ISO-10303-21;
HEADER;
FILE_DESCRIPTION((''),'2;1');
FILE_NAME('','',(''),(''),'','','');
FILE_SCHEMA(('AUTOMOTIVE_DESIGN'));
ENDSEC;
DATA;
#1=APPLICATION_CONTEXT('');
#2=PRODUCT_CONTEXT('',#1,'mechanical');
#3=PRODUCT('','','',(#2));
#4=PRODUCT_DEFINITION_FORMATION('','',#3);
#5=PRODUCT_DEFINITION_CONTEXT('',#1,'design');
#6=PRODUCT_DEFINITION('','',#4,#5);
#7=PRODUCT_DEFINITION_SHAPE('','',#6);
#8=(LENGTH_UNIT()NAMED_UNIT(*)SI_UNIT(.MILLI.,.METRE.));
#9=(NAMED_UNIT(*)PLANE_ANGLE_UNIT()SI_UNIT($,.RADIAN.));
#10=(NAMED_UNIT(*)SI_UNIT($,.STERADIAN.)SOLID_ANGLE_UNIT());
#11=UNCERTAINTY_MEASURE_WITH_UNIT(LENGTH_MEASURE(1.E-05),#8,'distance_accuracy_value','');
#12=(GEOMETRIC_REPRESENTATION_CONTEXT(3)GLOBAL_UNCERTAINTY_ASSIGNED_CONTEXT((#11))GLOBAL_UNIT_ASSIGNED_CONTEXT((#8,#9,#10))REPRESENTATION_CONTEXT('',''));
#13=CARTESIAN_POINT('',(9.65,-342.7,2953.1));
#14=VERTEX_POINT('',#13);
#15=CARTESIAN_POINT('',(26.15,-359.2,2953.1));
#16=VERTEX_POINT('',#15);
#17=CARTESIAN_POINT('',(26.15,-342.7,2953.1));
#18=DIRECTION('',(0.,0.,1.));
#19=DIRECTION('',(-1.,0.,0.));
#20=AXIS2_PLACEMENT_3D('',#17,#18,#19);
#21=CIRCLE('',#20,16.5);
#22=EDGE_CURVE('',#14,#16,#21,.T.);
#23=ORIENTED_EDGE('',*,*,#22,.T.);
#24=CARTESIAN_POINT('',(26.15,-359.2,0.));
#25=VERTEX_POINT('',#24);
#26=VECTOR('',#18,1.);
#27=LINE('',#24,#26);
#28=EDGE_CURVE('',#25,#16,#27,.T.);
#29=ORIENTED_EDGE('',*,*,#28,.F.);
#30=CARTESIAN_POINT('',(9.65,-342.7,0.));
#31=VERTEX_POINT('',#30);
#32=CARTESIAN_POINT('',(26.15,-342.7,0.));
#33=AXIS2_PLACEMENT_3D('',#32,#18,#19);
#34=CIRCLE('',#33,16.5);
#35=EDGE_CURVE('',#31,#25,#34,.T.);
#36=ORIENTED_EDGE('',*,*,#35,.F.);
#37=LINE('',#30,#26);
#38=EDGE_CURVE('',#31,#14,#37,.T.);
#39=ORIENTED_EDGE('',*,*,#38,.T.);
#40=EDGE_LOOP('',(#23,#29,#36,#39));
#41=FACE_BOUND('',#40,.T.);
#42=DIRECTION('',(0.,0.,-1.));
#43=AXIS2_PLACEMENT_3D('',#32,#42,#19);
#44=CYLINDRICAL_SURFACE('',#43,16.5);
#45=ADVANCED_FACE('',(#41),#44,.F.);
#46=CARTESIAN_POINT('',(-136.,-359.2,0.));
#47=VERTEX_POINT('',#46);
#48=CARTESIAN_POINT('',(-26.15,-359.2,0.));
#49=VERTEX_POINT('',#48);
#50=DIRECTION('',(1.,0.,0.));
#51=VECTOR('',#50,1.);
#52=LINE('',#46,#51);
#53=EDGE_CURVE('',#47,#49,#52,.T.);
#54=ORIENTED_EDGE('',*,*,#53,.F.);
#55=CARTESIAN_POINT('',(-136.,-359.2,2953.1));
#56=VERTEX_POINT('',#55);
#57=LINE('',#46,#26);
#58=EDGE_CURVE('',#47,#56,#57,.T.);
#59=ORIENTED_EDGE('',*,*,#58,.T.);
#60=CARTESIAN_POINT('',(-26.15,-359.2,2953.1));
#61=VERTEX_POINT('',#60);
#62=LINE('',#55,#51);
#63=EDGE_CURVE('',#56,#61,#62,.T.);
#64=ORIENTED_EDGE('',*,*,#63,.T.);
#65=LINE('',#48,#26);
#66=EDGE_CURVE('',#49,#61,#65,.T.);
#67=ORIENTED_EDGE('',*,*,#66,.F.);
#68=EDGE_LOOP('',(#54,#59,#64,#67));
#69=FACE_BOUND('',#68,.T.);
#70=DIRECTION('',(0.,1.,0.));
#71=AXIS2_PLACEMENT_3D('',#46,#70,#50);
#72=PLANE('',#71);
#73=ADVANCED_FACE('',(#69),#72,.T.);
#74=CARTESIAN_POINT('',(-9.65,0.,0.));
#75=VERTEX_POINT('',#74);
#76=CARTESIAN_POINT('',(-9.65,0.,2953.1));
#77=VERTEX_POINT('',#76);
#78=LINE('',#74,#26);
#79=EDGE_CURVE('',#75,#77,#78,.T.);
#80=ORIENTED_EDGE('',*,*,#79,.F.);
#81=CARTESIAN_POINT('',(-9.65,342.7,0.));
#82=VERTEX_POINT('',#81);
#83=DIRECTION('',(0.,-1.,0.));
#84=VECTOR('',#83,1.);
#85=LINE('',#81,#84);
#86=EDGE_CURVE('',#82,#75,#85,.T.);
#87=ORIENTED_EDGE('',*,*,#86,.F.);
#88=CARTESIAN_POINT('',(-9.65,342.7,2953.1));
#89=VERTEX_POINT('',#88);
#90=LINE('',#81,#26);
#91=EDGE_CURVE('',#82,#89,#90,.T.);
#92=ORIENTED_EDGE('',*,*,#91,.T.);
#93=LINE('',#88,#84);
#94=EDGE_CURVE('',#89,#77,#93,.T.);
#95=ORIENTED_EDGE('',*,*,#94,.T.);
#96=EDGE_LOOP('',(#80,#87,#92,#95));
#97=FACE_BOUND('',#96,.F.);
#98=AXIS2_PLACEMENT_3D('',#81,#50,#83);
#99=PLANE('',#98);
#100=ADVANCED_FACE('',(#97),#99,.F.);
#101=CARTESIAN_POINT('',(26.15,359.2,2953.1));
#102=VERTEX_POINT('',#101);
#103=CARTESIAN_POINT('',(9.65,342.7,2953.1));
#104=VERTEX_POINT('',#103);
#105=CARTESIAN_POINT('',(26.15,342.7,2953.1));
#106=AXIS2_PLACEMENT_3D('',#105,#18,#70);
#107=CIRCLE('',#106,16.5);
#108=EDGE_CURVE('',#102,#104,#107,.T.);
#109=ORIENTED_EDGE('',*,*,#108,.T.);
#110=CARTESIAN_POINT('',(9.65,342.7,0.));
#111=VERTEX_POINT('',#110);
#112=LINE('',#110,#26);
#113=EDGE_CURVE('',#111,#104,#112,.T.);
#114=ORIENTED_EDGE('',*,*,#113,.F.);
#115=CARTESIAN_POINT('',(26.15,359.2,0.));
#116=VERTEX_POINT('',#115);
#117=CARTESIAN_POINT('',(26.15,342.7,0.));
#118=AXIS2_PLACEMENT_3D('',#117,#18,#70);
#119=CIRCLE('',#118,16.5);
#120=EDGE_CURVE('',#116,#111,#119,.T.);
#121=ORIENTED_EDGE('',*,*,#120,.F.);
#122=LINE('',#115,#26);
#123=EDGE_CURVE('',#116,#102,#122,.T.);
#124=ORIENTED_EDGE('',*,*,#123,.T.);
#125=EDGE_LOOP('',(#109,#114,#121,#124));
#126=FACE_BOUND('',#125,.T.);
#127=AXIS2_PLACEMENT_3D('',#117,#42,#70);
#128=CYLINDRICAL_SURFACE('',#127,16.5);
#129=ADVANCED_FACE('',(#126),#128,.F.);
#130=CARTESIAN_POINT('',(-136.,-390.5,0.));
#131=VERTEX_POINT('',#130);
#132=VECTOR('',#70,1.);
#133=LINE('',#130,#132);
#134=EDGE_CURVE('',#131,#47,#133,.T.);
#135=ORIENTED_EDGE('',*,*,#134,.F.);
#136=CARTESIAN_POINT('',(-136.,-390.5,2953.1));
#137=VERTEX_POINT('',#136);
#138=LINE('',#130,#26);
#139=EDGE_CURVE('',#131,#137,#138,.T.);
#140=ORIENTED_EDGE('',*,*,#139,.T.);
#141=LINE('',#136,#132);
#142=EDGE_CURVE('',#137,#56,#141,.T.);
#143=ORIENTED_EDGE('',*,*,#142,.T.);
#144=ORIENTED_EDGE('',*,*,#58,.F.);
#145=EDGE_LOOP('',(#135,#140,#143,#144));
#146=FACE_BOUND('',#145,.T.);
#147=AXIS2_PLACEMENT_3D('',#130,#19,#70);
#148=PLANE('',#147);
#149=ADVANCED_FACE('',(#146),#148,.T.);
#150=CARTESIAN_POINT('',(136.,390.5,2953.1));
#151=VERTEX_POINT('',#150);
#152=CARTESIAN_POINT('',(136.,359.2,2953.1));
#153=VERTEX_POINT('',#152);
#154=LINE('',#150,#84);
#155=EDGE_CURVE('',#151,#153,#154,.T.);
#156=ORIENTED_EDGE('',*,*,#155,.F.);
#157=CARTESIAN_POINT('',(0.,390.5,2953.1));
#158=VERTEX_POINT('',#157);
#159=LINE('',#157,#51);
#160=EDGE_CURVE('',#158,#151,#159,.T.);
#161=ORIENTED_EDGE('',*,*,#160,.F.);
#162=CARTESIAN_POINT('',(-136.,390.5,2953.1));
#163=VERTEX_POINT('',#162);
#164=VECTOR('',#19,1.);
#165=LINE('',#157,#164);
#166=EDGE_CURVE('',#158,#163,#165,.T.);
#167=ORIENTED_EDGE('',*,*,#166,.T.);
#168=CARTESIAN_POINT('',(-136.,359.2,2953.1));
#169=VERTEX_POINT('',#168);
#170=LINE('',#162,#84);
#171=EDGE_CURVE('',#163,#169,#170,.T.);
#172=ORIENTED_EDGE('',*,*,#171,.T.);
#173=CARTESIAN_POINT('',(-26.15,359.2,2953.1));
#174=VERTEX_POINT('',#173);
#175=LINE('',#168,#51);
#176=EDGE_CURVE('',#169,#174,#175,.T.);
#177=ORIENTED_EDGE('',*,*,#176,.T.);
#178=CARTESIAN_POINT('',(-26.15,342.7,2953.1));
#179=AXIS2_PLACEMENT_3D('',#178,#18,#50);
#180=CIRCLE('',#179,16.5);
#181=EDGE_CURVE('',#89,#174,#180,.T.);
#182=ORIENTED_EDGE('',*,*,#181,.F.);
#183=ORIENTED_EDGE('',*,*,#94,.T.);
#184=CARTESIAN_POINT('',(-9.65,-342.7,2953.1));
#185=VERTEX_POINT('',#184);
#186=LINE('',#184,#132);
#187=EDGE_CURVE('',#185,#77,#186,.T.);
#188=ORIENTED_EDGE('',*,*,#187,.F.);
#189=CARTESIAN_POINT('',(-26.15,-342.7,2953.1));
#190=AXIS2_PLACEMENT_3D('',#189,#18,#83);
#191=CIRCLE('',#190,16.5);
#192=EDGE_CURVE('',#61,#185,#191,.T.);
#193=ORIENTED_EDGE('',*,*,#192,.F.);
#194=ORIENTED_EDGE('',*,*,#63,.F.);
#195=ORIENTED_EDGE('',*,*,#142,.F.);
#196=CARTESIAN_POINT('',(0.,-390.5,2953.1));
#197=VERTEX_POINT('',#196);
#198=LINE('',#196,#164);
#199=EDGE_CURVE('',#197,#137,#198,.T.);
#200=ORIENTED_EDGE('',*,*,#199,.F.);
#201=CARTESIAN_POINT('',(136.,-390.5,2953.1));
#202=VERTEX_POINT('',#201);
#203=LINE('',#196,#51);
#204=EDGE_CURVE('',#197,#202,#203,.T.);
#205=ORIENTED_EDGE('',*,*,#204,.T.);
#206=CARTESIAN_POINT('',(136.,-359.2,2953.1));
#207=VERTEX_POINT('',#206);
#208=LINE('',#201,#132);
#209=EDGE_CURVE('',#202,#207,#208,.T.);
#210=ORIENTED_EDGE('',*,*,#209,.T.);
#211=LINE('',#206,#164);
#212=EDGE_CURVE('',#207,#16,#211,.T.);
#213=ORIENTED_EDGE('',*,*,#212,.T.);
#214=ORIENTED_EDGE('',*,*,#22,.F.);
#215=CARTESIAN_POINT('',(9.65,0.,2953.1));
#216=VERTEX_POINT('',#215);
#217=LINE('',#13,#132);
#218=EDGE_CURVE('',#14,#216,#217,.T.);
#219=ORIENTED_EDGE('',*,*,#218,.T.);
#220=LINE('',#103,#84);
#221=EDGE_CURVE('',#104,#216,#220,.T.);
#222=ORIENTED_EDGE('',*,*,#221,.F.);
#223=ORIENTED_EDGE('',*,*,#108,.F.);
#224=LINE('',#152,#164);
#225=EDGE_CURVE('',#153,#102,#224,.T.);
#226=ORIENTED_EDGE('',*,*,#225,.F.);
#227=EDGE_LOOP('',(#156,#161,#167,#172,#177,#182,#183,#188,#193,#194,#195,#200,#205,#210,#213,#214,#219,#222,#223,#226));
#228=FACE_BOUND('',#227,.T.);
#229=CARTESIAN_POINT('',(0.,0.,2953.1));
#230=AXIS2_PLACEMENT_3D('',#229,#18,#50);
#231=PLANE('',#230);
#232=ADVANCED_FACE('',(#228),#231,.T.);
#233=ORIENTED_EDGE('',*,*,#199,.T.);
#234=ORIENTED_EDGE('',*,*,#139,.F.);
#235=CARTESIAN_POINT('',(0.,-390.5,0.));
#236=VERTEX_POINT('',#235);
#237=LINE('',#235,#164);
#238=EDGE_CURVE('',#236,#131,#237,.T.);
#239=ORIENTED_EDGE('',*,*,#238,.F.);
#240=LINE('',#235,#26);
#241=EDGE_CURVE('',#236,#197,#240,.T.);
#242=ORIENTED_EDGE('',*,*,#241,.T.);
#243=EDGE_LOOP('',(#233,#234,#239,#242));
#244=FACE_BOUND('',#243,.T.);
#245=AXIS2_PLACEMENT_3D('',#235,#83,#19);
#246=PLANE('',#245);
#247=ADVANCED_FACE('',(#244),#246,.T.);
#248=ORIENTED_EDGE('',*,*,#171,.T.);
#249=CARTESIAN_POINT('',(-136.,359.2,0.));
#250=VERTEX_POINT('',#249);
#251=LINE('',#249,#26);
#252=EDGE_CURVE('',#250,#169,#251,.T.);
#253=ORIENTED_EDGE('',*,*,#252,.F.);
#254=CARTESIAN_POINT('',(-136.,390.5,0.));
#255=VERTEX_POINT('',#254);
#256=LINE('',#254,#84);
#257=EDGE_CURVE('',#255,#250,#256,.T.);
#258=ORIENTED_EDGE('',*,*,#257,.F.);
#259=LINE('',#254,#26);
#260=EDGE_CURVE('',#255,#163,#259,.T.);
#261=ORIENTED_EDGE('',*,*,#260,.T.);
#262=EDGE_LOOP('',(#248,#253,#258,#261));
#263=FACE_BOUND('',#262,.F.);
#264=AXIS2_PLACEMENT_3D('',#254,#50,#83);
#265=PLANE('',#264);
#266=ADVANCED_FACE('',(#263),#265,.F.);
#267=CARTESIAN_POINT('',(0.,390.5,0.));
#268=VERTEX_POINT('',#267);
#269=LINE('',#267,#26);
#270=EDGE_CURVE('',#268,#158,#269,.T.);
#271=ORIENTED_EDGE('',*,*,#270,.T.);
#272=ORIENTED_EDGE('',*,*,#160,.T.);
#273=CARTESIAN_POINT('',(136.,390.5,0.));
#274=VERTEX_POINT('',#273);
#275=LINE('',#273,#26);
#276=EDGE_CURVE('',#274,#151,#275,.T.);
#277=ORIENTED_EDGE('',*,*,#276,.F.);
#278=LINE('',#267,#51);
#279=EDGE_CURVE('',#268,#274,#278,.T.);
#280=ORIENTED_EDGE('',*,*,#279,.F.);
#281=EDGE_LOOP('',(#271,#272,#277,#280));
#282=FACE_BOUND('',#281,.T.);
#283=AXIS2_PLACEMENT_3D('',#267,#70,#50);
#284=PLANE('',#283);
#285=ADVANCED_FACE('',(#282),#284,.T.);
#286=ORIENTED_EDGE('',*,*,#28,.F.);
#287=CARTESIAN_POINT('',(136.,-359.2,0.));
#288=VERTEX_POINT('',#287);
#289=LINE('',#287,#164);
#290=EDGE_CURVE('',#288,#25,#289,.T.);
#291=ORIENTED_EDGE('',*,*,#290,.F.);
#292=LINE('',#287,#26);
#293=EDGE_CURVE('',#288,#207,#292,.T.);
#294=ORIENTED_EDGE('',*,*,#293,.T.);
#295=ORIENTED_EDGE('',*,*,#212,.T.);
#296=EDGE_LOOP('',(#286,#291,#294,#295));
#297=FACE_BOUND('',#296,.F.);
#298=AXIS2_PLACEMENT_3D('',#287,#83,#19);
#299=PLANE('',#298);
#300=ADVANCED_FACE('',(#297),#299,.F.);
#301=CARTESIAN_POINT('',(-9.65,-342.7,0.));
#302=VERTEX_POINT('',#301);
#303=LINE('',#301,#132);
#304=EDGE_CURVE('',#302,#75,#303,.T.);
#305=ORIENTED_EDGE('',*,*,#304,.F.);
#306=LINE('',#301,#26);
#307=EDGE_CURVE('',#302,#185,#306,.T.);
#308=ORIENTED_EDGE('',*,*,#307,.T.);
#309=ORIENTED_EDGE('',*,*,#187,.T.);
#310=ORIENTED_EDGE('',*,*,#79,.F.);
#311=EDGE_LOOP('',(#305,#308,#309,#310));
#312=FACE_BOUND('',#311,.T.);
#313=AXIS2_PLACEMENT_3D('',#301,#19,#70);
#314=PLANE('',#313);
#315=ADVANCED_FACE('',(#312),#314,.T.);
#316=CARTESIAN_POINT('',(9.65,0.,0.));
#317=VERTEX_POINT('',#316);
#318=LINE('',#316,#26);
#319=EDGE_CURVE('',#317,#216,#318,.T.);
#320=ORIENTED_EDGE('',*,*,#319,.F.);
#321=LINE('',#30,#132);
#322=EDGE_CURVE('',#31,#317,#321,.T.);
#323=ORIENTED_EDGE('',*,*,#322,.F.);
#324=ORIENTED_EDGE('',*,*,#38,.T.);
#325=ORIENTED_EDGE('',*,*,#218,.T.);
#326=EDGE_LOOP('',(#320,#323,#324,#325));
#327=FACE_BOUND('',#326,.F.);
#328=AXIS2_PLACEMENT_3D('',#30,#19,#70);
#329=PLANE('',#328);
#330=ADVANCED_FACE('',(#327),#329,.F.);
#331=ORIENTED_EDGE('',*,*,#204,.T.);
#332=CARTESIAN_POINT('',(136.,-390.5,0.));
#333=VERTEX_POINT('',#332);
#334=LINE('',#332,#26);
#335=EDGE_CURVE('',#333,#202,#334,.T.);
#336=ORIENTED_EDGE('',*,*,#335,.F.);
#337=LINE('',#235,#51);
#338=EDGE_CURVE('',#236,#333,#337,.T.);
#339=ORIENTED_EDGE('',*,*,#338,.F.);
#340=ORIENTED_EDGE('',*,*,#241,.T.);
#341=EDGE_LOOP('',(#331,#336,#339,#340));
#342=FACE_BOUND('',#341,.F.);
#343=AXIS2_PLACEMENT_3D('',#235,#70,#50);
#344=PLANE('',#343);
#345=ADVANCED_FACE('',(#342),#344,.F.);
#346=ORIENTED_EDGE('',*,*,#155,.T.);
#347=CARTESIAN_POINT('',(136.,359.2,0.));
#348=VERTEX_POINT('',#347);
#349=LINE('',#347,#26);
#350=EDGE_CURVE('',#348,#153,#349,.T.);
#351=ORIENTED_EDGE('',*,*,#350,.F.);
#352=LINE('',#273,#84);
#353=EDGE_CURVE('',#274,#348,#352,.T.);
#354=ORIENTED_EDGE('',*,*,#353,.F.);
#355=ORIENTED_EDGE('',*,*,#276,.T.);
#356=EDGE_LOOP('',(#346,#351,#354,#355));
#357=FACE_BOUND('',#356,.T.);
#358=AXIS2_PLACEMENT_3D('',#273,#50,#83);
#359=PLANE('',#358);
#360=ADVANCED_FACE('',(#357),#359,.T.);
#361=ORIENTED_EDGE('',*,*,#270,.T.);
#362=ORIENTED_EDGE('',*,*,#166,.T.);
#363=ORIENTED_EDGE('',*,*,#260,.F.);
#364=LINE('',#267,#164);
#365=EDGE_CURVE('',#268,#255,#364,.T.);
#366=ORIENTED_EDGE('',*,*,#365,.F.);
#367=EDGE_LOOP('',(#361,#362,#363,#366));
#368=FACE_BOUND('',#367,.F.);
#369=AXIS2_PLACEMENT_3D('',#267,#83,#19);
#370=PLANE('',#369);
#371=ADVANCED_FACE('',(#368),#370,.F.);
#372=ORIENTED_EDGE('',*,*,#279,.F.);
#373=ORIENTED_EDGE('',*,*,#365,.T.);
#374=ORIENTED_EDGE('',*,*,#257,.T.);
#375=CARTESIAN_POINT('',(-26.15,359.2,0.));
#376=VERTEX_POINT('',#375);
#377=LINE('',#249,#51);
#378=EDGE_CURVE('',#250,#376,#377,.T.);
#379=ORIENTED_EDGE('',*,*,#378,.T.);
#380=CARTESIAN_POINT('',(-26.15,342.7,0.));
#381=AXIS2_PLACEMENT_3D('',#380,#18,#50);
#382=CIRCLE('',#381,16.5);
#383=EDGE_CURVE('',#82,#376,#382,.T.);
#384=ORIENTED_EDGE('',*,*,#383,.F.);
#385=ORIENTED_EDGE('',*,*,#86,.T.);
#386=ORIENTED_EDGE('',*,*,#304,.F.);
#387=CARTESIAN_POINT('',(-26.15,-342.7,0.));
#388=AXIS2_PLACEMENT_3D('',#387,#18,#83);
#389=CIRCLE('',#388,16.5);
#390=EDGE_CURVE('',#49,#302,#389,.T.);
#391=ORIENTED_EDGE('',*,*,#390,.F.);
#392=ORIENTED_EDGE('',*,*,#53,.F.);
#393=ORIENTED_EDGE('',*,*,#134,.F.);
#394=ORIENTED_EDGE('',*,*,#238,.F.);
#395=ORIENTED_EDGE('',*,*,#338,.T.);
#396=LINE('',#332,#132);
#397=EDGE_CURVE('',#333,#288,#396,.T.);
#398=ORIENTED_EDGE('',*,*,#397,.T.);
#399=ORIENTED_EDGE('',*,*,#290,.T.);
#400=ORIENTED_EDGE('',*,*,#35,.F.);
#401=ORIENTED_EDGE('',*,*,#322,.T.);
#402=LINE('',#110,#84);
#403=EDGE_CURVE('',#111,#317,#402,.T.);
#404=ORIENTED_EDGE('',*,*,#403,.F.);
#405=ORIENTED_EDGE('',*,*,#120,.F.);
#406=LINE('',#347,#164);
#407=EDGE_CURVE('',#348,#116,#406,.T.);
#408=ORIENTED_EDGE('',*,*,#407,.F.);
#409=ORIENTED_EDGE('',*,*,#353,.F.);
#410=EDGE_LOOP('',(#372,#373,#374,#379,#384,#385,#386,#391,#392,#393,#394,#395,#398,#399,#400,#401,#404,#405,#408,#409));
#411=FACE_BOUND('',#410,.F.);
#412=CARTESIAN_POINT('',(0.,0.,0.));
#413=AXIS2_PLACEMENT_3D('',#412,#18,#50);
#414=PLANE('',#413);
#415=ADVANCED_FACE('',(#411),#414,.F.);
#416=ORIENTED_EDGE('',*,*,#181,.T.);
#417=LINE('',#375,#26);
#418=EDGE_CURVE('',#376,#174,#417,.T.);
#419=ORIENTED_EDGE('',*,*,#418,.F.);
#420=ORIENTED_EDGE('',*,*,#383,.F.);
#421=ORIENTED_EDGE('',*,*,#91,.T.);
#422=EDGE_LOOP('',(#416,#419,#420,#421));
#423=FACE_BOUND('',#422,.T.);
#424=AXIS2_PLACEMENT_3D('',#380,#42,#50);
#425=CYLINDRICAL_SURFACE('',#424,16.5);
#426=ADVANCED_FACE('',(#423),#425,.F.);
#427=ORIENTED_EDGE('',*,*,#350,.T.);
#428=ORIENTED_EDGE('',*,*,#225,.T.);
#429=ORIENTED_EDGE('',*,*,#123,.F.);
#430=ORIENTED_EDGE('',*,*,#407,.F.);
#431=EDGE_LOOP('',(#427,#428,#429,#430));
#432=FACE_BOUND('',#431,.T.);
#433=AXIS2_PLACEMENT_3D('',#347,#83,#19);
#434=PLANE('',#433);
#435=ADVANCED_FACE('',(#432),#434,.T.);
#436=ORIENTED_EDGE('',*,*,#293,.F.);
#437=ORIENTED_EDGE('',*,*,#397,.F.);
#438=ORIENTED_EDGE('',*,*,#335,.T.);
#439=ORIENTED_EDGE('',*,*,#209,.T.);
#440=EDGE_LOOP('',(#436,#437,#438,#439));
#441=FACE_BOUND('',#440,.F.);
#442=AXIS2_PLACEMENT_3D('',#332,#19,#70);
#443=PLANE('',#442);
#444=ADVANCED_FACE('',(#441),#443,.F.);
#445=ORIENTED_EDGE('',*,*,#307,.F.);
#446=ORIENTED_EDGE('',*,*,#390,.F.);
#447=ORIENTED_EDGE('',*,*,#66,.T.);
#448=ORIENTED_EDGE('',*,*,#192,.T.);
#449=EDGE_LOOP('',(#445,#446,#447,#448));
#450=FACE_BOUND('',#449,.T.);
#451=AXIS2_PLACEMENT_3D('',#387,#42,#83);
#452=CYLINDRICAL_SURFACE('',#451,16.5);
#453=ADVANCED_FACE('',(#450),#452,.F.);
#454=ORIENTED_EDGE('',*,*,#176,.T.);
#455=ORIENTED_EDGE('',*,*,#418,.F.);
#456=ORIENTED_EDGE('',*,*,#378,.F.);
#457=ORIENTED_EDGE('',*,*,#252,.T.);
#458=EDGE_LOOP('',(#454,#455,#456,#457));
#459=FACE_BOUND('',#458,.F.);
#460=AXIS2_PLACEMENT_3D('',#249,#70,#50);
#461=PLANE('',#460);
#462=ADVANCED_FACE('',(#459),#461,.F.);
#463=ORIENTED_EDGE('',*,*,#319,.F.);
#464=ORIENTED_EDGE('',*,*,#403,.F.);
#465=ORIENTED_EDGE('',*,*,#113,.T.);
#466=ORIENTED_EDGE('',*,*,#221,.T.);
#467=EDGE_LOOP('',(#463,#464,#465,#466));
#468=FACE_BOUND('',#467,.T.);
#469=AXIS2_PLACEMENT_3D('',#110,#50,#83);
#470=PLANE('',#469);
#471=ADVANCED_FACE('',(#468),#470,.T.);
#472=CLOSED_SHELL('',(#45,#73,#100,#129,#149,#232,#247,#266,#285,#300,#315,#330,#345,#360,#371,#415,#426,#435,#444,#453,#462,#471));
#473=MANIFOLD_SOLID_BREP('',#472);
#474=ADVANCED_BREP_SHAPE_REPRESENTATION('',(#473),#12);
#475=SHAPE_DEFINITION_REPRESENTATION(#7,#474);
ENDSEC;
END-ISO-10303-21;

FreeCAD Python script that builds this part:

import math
import FreeCAD as App
import Part
import Sketcher
from FreeCAD import Vector

doc = App.newDocument("Part")
body = doc.addObject("PartDesign::Body", "Body")

sketch1 = doc.addObject("Sketcher::SketchObject", "Sketch")
body.addObject(sketch1)
sketch1.AttachmentSupport = (doc.XY_Plane, [""])
sketch1.MapMode = "FlatFace"
sketch1.addGeometry(Part.LineSegment(Vector(-136, -359, 0), Vector(-136, -390, 0)), False)
sketch1.addGeometry(Part.LineSegment(Vector(-136, -390, 0), Vector(136, -390, 0)), False)
sketch1.addGeometry(Part.LineSegment(Vector(136, -390, 0), Vector(136, -359, 0)), False)
sketch1.addGeometry(Part.LineSegment(Vector(136, -359, 0), Vector(26, -359, 0)), False)
sketch1.addGeometry(Part.ArcOfCircle(Part.Circle(Vector(26, -343, 0), Vector(0, 0, 1), 16), math.radians(180), math.radians(270)), False)
sketch1.addGeometry(Part.LineSegment(Vector(10, -343, 0), Vector(10, 343, 0)), False)
sketch1.addGeometry(Part.ArcOfCircle(Part.Circle(Vector(26, 343, 0), Vector(0, 0, 1), 16), math.radians(90), math.radians(180)), False)
sketch1.addGeometry(Part.LineSegment(Vector(26, 359, 0), Vector(136, 359, 0)), False)
sketch1.addGeometry(Part.LineSegment(Vector(136, 359, 0), Vector(136, 390, 0)), False)
sketch1.addGeometry(Part.LineSegment(Vector(136, 390, 0), Vector(-136, 390, 0)), False)
sketch1.addGeometry(Part.LineSegment(Vector(-136, 390, 0), Vector(-136, 359, 0)), False)
sketch1.addGeometry(Part.LineSegment(Vector(-136, 359, 0), Vector(-26, 359, 0)), False)
sketch1.addGeometry(Part.ArcOfCircle(Part.Circle(Vector(-26, 343, 0), Vector(0, 0, 1), 16), math.radians(0), math.radians(90)), False)
sketch1.addGeometry(Part.LineSegment(Vector(-10, 343, 0), Vector(-10, -343, 0)), False)
sketch1.addGeometry(Part.ArcOfCircle(Part.Circle(Vector(-26, -343, 0), Vector(0, 0, 1), 16), math.radians(-90), math.radians(0)), False)
sketch1.addGeometry(Part.LineSegment(Vector(-26, -359, 0), Vector(-136, -359, 0)), False)
sketch1.addConstraint(Sketcher.Constraint("Coincident", 0, 2, 1, 1))
sketch1.addConstraint(Sketcher.Constraint("Coincident", 1, 2, 2, 1))
sketch1.addConstraint(Sketcher.Constraint("Coincident", 2, 2, 3, 1))
sketch1.addConstraint(Sketcher.Constraint("Tangent", 3, 2, 4, 2))
sketch1.addConstraint(Sketcher.Constraint("Tangent", 4, 1, 5, 1))
sketch1.addConstraint(Sketcher.Constraint("Tangent", 5, 2, 6, 2))
sketch1.addConstraint(Sketcher.Constraint("Tangent", 6, 1, 7, 1))
sketch1.addConstraint(Sketcher.Constraint("Coincident", 7, 2, 8, 1))
sketch1.addConstraint(Sketcher.Constraint("Coincident", 8, 2, 9, 1))
sketch1.addConstraint(Sketcher.Constraint("Coincident", 9, 2, 10, 1))
sketch1.addConstraint(Sketcher.Constraint("Coincident", 10, 2, 11, 1))
sketch1.addConstraint(Sketcher.Constraint("Tangent", 11, 2, 12, 2))
sketch1.addConstraint(Sketcher.Constraint("Tangent", 12, 1, 13, 1))
sketch1.addConstraint(Sketcher.Constraint("Tangent", 13, 2, 14, 2))
sketch1.addConstraint(Sketcher.Constraint("Tangent", 14, 1, 15, 1))
sketch1.addConstraint(Sketcher.Constraint("Coincident", 15, 2, 0, 1))
sketch1.addConstraint(Sketcher.Constraint("Vertical", 0))
sketch1.addConstraint(Sketcher.Constraint("Horizontal", 1))
sketch1.addConstraint(Sketcher.Constraint("Vertical", 2))
sketch1.addConstraint(Sketcher.Constraint("Horizontal", 3))
sketch1.addConstraint(Sketcher.Constraint("Vertical", 5))
sketch1.addConstraint(Sketcher.Constraint("Horizontal", 7))
sketch1.addConstraint(Sketcher.Constraint("Vertical", 8))
sketch1.addConstraint(Sketcher.Constraint("Horizontal", 9))
sketch1.addConstraint(Sketcher.Constraint("Vertical", 10))
sketch1.addConstraint(Sketcher.Constraint("Horizontal", 11))
sketch1.addConstraint(Sketcher.Constraint("Vertical", 13))
sketch1.addConstraint(Sketcher.Constraint("Horizontal", 15))
sketch1.addConstraint(Sketcher.Constraint("Equal", 4, 6))
sketch1.addConstraint(Sketcher.Constraint("Equal", 6, 12))
sketch1.addConstraint(Sketcher.Constraint("Equal", 12, 14))
sketch1.addConstraint(Sketcher.Constraint("Symmetric", 4, 3, 12, 3, -1, 1))
sketch1.addConstraint(Sketcher.Constraint("Symmetric", 0, 2, 8, 2, -1, 1))
sketch1.addConstraint(Sketcher.Constraint("Symmetric", 7, 2, 10, 2, -2))
sketch1.addConstraint(Sketcher.Constraint("Symmetric", 2, 2, 15, 2, -2))
sketch1.addConstraint(Sketcher.Constraint("Radius", 4, 16.5))
sketch1.addConstraint(Sketcher.Constraint("DistanceY", 0, 2, 0, 1, 31.3))
sketch1.addConstraint(Sketcher.Constraint("DistanceX", 0, 2, -1, 1, 136.0))
sketch1.addConstraint(Sketcher.Constraint("DistanceY", 0, 2, -1, 1, 390.5))
sketch1.addConstraint(Sketcher.Constraint("DistanceX", -1, 1, 4, 1, 9.65))
pad1 = doc.addObject("PartDesign::Pad", "Pad")
body.addObject(pad1)
pad1.Profile = sketch1
pad1.Length = 2953.1

doc.recompute()
